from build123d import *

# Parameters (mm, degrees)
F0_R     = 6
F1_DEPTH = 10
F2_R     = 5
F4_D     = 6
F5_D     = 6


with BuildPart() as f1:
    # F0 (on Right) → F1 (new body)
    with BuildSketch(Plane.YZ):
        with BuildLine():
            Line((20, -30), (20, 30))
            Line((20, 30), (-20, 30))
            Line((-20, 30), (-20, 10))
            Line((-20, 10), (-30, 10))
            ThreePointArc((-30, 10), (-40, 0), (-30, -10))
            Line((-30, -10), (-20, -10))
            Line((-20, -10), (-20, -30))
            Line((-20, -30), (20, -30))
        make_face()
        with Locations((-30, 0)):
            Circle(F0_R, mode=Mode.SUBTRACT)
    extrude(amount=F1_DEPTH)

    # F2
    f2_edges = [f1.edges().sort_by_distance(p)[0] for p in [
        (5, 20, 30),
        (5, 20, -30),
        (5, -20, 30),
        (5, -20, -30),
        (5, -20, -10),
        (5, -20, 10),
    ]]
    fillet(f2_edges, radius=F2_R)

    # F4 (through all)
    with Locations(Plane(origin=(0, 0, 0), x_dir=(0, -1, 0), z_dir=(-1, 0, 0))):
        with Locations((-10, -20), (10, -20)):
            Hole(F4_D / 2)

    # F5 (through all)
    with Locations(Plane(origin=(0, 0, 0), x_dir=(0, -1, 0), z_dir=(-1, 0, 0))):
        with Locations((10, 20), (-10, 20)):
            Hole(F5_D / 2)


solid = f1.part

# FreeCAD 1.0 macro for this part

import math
import FreeCAD as App
import Part
import Sketcher

V = App.Vector


def edges_at(feature, points):
    """Names of the edges that pass closest to the given points."""
    edges = feature.Shape.Edges
    near = lambda p: min(range(len(edges)), key=lambda i: edges[i].distToShape(Part.Vertex(*p))[0])
    return sorted({f"Edge{near(p) + 1}" for p in points})

doc = App.newDocument("Part")
body = doc.addObject("PartDesign::Body", "Body")

# Sketch on YZ plane
sketch1 = body.newObject("Sketcher::SketchObject", "Sketch")
sketch1.AttachmentSupport = (doc.getObject("YZ_Plane"), [""])
sketch1.MapMode = "FlatFace"
sketch1.addGeometry([
    Part.LineSegment(V(20, -30, 0), V(20, 30, 0)),  # 0
    Part.LineSegment(V(20, 30, 0), V(-20, 30, 0)),  # 1
    Part.LineSegment(V(-20, 30, 0), V(-20, 10, 0)),  # 2
    Part.LineSegment(V(-20, 10, 0), V(-30, 10, 0)),  # 3
    Part.ArcOfCircle(Part.Circle(V(-30, 0, 0), V(0, 0, 1), 10), math.radians(90), math.radians(270)),  # 4
    Part.LineSegment(V(-30, -10, 0), V(-20, -10, 0)),  # 5
    Part.LineSegment(V(-20, -10, 0), V(-20, -30, 0)),  # 6
    Part.LineSegment(V(-20, -30, 0), V(20, -30, 0)),  # 7
    Part.Circle(V(-30, 0, 0), V(0, 0, 1), 6),  # 8
], False)
sketch1.addConstraint([
    Sketcher.Constraint("Coincident", 0, 2, 1, 1),
    Sketcher.Constraint("Coincident", 1, 2, 2, 1),
    Sketcher.Constraint("Coincident", 2, 2, 3, 1),
    Sketcher.Constraint("Tangent", 3, 2, 4, 1),
    Sketcher.Constraint("Tangent", 4, 2, 5, 1),
    Sketcher.Constraint("Coincident", 5, 2, 6, 1),
    Sketcher.Constraint("Coincident", 6, 2, 7, 1),
    Sketcher.Constraint("Coincident", 7, 2, 0, 1),
    Sketcher.Constraint("Vertical", 0),
    Sketcher.Constraint("Horizontal", 1),
    Sketcher.Constraint("Vertical", 2),
    Sketcher.Constraint("Horizontal", 3),
    Sketcher.Constraint("Horizontal", 5),
    Sketcher.Constraint("Vertical", 6),
    Sketcher.Constraint("Horizontal", 7),
    Sketcher.Constraint("Coincident", 8, 3, 4, 3),
    Sketcher.Constraint("Symmetric", 0, 2, 6, 2, -1, 1),
    Sketcher.Constraint("Symmetric", 2, 2, 5, 2, -1),
    Sketcher.Constraint("Diameter", 8, 12.0),
    Sketcher.Constraint("Radius", 4, 10.0),
    Sketcher.Constraint("DistanceX", 1, 2, 1, 1, 40.0),
    Sketcher.Constraint("DistanceX", 3, 2, 3, 1, 10.0),
    Sketcher.Constraint("DistanceY", 0, 1, 0, 2, 60.0),
])
pad1 = body.newObject("PartDesign::Pad", "Pad")
pad1.Profile = sketch1
pad1.Length = 10
doc.recompute()

fillet = body.newObject("PartDesign::Fillet", "Fillet")
fillet.Base = (pad1, edges_at(pad1, [
    (5, 20, 30),
    (5, 20, -30),
    (5, -20, 30),
    (5, -20, -30),
    (5, -20, -10),
    (5, -20, 10),
]))
fillet.Radius = 5

# Sketch on YZ plane
sketch2 = body.newObject("Sketcher::SketchObject", "Sketch001")
sketch2.AttachmentSupport = (doc.getObject("YZ_Plane"), [""])
sketch2.MapMode = "FlatFace"
sketch2.addGeometry([
    Part.Circle(V(10, -20, 0), V(0, 0, 1), 3),
    Part.Circle(V(-10, -20, 0), V(0, 0, 1), 3),
], False)
sketch2.addConstraint([
    Sketcher.Constraint("Equal", 0, 1),
    Sketcher.Constraint("Symmetric", 0, 3, 1, 3, -2),
    Sketcher.Constraint("Diameter", 0, 6.0),
    Sketcher.Constraint("DistanceX", -1, 1, 0, 3, 10.0),
    Sketcher.Constraint("DistanceY", 0, 3, -1, 1, 20.0),
])
doc.recompute()
hole = body.newObject("PartDesign::Hole", "Hole")
hole.Profile = sketch2
hole.ThreadType = "None"
hole.Diameter = 6
hole.DepthType = "ThroughAll"
hole.Reversed = True

# Sketch on YZ plane
sketch3 = body.newObject("Sketcher::SketchObject", "Sketch002")
sketch3.AttachmentSupport = (doc.getObject("YZ_Plane"), [""])
sketch3.MapMode = "FlatFace"
sketch3.addGeometry([
    Part.Circle(V(-10, 20, 0), V(0, 0, 1), 3),
    Part.Circle(V(10, 20, 0), V(0, 0, 1), 3),
], False)
sketch3.addConstraint([
    Sketcher.Constraint("Equal", 0, 1),
    Sketcher.Constraint("Symmetric", 0, 3, 1, 3, -2),
    Sketcher.Constraint("Diameter", 0, 6.0),
    Sketcher.Constraint("DistanceX", 0, 3, -1, 1, 10.0),
    Sketcher.Constraint("DistanceY", -1, 1, 0, 3, 20.0),
])
doc.recompute()
hole2 = body.newObject("PartDesign::Hole", "Hole001")
hole2.Profile = sketch3
hole2.ThreadType = "None"
hole2.Diameter = 6
hole2.DepthType = "ThroughAll"
hole2.Reversed = True

doc.recompute()
